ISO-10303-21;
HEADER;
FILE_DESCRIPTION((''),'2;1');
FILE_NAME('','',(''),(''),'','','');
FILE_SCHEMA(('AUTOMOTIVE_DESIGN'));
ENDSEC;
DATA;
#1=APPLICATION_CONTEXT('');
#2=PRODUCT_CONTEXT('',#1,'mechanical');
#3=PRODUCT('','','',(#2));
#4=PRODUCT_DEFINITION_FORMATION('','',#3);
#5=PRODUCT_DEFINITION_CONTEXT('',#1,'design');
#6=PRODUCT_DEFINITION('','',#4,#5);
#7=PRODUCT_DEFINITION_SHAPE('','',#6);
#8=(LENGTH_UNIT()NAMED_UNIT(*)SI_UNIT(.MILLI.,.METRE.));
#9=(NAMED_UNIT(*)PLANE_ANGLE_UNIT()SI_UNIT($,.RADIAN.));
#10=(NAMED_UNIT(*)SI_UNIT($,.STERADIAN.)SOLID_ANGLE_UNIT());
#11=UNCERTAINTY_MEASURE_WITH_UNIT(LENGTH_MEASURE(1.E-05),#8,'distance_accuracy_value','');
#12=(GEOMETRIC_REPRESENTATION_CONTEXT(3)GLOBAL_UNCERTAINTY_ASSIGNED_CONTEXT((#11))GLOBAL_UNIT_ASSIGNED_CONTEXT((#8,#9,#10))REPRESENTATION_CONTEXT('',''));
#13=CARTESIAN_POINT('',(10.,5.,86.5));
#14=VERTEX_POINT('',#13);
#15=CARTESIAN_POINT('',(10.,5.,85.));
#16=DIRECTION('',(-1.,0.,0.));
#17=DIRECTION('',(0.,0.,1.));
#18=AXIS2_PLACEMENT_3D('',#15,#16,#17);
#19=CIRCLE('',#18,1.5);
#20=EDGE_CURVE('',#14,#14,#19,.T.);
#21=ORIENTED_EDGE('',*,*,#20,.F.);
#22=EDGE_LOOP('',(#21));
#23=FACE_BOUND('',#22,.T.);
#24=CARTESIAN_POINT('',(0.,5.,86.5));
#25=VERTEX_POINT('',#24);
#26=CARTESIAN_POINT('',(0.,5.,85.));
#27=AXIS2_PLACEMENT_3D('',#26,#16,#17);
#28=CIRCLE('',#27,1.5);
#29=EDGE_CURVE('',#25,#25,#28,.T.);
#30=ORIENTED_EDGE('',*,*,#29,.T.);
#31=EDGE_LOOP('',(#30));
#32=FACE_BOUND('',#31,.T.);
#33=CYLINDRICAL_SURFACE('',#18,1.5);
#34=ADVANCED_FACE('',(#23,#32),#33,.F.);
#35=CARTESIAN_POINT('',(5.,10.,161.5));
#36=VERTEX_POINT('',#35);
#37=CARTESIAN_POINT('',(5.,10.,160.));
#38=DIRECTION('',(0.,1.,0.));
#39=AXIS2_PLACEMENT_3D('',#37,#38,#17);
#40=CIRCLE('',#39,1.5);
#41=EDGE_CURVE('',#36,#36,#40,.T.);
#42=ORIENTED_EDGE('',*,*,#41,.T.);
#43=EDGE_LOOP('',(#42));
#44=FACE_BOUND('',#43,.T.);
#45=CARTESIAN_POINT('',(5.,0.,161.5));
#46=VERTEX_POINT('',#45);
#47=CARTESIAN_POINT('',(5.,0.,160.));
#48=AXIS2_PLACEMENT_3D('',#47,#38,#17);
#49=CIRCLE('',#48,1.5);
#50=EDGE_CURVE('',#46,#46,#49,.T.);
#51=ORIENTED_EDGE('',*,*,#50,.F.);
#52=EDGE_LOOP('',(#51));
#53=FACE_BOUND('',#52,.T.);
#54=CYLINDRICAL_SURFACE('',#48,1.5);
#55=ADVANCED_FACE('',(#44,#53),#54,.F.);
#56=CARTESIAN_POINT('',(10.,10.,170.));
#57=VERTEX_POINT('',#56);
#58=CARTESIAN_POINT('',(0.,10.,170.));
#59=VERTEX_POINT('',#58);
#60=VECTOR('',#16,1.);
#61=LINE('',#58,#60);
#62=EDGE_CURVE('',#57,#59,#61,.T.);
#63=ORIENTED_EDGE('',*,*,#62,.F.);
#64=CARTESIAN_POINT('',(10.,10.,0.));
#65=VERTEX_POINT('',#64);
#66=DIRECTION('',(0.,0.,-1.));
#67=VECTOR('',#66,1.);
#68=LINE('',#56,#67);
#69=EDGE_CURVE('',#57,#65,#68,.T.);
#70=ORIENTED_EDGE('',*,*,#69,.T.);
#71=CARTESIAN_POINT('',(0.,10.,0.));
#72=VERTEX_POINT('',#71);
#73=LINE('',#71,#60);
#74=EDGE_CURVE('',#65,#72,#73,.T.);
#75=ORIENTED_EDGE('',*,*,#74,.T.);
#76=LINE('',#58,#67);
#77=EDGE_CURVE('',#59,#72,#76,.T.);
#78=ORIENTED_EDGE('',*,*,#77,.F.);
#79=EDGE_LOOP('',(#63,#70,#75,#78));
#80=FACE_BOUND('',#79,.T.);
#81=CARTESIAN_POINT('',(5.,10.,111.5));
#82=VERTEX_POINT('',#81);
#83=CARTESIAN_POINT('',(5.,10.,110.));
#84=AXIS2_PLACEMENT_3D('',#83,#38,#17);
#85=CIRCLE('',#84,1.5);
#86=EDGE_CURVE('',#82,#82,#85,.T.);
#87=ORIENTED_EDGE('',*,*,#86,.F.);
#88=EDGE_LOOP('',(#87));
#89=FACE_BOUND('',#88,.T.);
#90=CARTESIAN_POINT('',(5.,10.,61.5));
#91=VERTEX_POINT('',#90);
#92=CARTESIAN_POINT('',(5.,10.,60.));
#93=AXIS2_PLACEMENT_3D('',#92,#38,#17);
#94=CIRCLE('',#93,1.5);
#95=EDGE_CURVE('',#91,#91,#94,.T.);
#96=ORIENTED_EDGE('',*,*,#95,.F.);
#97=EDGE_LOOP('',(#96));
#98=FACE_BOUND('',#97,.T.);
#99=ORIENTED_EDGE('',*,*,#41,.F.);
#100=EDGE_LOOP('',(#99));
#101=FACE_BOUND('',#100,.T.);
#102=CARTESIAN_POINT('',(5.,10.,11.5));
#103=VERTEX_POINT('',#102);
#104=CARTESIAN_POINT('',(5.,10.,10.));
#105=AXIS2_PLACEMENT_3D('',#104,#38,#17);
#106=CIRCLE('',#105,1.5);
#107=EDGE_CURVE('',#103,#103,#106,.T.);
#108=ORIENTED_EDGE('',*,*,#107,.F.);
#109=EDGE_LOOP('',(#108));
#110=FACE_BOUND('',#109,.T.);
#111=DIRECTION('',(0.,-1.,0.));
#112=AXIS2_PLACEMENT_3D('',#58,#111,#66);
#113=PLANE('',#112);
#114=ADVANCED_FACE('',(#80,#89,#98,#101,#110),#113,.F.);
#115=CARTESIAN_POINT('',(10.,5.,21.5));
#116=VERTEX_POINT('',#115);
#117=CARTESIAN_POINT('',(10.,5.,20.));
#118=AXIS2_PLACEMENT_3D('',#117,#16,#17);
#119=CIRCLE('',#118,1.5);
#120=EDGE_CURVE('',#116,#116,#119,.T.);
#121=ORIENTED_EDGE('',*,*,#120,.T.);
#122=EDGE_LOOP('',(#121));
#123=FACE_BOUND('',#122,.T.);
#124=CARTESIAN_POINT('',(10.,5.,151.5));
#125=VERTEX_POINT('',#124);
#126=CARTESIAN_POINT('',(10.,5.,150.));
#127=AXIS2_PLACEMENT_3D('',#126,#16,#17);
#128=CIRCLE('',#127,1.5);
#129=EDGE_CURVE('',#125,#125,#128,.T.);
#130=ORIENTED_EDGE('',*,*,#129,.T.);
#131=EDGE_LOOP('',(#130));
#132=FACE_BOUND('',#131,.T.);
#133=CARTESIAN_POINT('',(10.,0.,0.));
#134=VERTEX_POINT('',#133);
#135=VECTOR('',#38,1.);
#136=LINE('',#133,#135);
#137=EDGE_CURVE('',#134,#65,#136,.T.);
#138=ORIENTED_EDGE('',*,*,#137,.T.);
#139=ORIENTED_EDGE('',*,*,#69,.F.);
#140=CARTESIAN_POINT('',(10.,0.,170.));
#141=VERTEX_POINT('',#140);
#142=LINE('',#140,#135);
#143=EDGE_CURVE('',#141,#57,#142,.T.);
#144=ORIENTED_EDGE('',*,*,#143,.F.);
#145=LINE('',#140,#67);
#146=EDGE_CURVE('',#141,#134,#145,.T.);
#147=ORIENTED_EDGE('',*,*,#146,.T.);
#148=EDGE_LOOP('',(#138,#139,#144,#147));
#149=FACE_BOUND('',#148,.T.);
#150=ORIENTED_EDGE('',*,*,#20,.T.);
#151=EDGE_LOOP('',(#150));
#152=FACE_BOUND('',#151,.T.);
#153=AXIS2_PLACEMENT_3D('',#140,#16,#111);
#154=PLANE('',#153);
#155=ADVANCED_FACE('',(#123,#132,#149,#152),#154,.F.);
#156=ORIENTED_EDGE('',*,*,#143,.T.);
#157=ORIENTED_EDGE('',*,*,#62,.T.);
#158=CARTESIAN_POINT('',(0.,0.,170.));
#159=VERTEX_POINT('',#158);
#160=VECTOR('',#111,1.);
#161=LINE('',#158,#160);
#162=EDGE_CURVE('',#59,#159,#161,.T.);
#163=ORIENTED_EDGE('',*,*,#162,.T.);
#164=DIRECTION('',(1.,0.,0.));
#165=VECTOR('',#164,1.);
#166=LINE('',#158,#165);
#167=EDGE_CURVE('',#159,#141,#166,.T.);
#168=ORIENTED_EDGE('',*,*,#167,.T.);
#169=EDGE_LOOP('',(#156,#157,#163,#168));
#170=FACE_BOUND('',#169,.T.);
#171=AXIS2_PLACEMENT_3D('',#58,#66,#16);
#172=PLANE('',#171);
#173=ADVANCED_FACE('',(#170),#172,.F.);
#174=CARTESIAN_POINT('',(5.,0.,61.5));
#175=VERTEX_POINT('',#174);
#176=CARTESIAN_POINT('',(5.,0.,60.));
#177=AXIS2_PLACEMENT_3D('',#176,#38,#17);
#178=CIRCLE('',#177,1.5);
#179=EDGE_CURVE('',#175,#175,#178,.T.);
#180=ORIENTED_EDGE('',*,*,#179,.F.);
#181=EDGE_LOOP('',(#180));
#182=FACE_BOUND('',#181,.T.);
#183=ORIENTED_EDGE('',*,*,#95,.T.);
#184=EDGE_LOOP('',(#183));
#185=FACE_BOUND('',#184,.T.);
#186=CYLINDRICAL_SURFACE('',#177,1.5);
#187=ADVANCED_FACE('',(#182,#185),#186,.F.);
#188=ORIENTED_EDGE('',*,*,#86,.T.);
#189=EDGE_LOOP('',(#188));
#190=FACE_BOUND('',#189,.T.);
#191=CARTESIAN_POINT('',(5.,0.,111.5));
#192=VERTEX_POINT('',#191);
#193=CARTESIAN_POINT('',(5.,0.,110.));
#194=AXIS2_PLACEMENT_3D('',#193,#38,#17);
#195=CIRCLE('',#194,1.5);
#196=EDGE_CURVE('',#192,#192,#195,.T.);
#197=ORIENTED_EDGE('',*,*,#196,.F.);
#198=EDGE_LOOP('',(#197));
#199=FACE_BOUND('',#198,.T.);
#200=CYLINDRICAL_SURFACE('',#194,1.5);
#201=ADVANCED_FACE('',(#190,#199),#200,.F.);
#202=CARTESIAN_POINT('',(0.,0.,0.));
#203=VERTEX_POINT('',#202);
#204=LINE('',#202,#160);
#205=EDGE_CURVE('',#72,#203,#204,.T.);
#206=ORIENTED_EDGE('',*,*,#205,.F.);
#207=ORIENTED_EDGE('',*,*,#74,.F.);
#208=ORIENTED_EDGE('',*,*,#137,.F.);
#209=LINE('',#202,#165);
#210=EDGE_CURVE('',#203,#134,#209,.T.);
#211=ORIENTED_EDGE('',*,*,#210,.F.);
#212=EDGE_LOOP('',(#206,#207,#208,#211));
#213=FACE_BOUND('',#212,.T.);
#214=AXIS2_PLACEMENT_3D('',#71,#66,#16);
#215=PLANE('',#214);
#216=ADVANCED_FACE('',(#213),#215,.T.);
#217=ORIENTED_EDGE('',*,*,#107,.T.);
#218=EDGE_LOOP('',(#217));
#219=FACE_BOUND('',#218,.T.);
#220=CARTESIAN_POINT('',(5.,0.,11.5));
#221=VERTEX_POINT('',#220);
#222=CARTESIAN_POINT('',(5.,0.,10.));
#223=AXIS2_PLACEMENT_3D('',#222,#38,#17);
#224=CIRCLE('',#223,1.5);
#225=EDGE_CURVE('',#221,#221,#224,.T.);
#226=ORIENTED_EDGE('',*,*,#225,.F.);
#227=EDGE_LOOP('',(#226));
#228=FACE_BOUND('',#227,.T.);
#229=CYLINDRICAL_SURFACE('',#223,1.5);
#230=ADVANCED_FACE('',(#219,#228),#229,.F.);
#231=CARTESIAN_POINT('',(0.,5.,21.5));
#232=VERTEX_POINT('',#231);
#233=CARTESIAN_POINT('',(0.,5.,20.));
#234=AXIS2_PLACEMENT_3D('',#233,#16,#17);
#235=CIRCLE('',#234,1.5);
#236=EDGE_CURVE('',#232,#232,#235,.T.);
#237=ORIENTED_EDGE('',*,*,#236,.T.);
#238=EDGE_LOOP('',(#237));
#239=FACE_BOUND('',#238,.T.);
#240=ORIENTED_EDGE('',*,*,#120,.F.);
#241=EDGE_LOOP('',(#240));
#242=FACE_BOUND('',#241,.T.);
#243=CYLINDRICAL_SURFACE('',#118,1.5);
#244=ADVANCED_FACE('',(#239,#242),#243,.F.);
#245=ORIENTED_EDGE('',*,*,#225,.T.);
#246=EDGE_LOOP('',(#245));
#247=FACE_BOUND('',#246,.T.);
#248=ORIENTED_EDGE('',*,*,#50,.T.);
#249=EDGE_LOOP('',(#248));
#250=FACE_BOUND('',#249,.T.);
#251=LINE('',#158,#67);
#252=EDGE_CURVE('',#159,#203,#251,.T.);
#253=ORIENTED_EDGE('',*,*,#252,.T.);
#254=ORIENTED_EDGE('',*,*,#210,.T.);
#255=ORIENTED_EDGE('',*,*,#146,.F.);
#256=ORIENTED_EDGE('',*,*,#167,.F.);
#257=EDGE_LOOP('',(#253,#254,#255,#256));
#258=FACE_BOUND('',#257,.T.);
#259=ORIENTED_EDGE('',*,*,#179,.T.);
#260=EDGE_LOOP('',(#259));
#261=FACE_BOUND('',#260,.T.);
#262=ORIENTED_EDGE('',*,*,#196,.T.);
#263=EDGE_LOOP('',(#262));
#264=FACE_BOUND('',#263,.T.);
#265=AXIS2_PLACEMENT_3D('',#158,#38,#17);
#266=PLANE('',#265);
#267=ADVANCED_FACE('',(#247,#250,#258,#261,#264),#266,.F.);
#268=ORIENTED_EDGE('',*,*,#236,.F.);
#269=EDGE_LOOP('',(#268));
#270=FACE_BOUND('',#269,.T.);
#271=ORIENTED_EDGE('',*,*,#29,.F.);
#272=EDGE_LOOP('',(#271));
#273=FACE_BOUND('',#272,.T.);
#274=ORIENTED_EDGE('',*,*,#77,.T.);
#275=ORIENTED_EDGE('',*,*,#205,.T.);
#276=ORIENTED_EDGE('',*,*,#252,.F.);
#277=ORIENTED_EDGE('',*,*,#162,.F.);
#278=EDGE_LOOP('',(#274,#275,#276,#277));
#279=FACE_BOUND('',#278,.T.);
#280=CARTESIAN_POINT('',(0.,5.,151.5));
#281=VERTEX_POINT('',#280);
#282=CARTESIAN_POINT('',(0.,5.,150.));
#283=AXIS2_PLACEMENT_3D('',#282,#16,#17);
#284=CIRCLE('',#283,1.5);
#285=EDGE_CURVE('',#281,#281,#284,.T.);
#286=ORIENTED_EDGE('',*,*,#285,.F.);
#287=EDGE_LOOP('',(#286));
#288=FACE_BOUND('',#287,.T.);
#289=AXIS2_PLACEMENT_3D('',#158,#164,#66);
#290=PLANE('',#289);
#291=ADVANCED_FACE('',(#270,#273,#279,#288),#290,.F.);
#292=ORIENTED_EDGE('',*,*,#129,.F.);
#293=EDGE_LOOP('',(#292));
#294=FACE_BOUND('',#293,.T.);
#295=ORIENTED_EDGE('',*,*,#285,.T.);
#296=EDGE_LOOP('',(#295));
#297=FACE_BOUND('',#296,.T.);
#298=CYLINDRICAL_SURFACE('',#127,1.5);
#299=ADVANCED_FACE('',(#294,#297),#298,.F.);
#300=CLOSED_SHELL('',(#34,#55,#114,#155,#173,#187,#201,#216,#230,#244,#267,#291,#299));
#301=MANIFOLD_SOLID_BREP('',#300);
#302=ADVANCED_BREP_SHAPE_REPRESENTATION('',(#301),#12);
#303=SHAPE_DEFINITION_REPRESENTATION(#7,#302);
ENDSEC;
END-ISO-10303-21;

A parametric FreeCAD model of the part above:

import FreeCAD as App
import Part
import Sketcher


def add_polygon(sketch, points):
    """Adds a closed chain of lines whose ends are joined by coincident constraints."""
    first, n = sketch.GeometryCount, len(points)
    for a, b in zip(points, points[1:] + points[:1]):
        sketch.addGeometry(Part.LineSegment(App.Vector(*a, 0), App.Vector(*b, 0)), False)
    for i in range(n):
        sketch.addConstraint(Sketcher.Constraint("Coincident", first + i, 2, first + (i + 1) % n, 1))

doc = App.newDocument("Part")
body = doc.addObject("PartDesign::Body", "Body")

# Sketch on XY plane
sketch1 = body.newObject("Sketcher::SketchObject", "Sketch")
sketch1.AttachmentSupport = (doc.getObject("XY_Plane"), [""])
sketch1.MapMode = "FlatFace"
add_polygon(sketch1, [(0, 10), (0, 0), (10, 0), (10, 10)])  # lines 0-3
sketch1.addConstraint(Sketcher.Constraint("Vertical", 0))
sketch1.addConstraint(Sketcher.Constraint("Horizontal", 1))
sketch1.addConstraint(Sketcher.Constraint("Vertical", 2))
sketch1.addConstraint(Sketcher.Constraint("Horizontal", 3))
sketch1.addConstraint(Sketcher.Constraint("Coincident", 0, 2, -1, 1))
sketch1.addConstraint(Sketcher.Constraint("Equal", 3, 0))
sketch1.addConstraint(Sketcher.Constraint("DistanceX", 1, 1, 1, 2, 10.0))
pad1 = body.newObject("PartDesign::Pad", "Pad")
pad1.Profile = sketch1
pad1.Length = 170

# Sketch on XZ plane
sketch2 = body.newObject("Sketcher::SketchObject", "Sketch001")
sketch2.AttachmentSupport = (doc.getObject("XZ_Plane"), [""])
sketch2.MapMode = "FlatFace"
sketch2.AttachmentOffset = App.Placement(App.Vector(0, 0, -10), App.Rotation())
sketch2.addGeometry(Part.Circle(App.Vector(5, 10, 0), App.Vector(0, 0, 1), 1.5), False)
sketch2.addConstraint(Sketcher.Constraint("Diameter", 0, 3.0))
sketch2.addConstraint(Sketcher.Constraint("DistanceX", -1, 1, 0, 3, 5.0))
sketch2.addConstraint(Sketcher.Constraint("DistanceY", -1, 1, 0, 3, 10.0))
pocket1 = body.newObject("PartDesign::Pocket", "Pocket")
pocket1.Profile = sketch2
pocket1.Type = "ThroughAll"
pocket1.Reversed = True
doc.recompute()

linearpattern = body.newObject("PartDesign::LinearPattern", "LinearPattern")
linearpattern.Originals = [pocket1]
linearpattern.Direction = (doc.getObject("Z_Axis"), [""])
linearpattern.Mode = "offset"
linearpattern.Offset = 50
linearpattern.Occurrences = 4
body.Tip = linearpattern

# Sketch on YZ plane
sketch3 = body.newObject("Sketcher::SketchObject", "Sketch002")
sketch3.AttachmentSupport = (doc.getObject("YZ_Plane"), [""])
sketch3.MapMode = "FlatFace"
sketch3.addGeometry(Part.Circle(App.Vector(5, 20, 0), App.Vector(0, 0, 1), 1.5), False)
sketch3.addGeometry(Part.Circle(App.Vector(5, 85, 0), App.Vector(0, 0, 1), 1.5), False)
sketch3.addGeometry(Part.Circle(App.Vector(5, 150, 0), App.Vector(0, 0, 1), 1.5), False)
sketch3.addConstraint(Sketcher.Constraint("Equal", 0, 1))
sketch3.addConstraint(Sketcher.Constraint("Equal", 1, 2))
sketch3.addConstraint(Sketcher.Constraint("Vertical", 0, 3, 1, 3))
sketch3.addConstraint(Sketcher.Constraint("Vertical", 1, 3, 2, 3))
sketch3.addConstraint(Sketcher.Constraint("Diameter", 0, 3.0))
sketch3.addConstraint(Sketcher.Constraint("DistanceX", -1, 1, 0, 3, 5.0))
sketch3.addConstraint(Sketcher.Constraint("DistanceY", -1, 1, 0, 3, 20.0))
sketch3.addConstraint(Sketcher.Constraint("DistanceY", -1, 1, 1, 3, 85.0))
sketch3.addConstraint(Sketcher.Constraint("DistanceY", -1, 1, 2, 3, 150.0))
pocket2 = body.newObject("PartDesign::Pocket", "Pocket001")
pocket2.Profile = sketch3
pocket2.Type = "ThroughAll"
pocket2.Reversed = True

doc.recompute()
